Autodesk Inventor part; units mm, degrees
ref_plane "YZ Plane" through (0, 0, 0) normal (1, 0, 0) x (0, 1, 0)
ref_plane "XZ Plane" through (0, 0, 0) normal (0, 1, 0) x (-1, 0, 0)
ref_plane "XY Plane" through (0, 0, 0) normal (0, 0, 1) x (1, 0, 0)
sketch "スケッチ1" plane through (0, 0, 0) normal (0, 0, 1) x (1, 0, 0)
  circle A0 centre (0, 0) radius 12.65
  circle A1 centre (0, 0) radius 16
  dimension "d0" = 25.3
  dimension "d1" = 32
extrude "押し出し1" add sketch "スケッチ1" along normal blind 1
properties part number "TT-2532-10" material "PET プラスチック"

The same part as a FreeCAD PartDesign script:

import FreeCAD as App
import Part
import Sketcher

doc = App.newDocument("Part")
body = doc.addObject("PartDesign::Body", "Body")

# Sketch on XY plane
sketch1 = body.newObject("Sketcher::SketchObject", "Sketch")
sketch1.AttachmentSupport = (doc.getObject("XY_Plane"), [""])
sketch1.MapMode = "FlatFace"
sketch1.addGeometry([
    Part.Circle(App.Vector(0, 0, 0), App.Vector(0, 0, 1), 16),
    Part.Circle(App.Vector(0, 0, 0), App.Vector(0, 0, 1), 13),
], False)
sketch1.addConstraint([
    Sketcher.Constraint("Coincident", 0, 3, -1, 1),
    Sketcher.Constraint("Coincident", 1, 3, -1, 1),
    Sketcher.Constraint("Diameter", 0, 32.0),
    Sketcher.Constraint("Diameter", 1, 25.3),
])
pad1 = body.newObject("PartDesign::Pad", "Pad")
pad1.Profile = sketch1
pad1.Length = 1

doc.recompute()
